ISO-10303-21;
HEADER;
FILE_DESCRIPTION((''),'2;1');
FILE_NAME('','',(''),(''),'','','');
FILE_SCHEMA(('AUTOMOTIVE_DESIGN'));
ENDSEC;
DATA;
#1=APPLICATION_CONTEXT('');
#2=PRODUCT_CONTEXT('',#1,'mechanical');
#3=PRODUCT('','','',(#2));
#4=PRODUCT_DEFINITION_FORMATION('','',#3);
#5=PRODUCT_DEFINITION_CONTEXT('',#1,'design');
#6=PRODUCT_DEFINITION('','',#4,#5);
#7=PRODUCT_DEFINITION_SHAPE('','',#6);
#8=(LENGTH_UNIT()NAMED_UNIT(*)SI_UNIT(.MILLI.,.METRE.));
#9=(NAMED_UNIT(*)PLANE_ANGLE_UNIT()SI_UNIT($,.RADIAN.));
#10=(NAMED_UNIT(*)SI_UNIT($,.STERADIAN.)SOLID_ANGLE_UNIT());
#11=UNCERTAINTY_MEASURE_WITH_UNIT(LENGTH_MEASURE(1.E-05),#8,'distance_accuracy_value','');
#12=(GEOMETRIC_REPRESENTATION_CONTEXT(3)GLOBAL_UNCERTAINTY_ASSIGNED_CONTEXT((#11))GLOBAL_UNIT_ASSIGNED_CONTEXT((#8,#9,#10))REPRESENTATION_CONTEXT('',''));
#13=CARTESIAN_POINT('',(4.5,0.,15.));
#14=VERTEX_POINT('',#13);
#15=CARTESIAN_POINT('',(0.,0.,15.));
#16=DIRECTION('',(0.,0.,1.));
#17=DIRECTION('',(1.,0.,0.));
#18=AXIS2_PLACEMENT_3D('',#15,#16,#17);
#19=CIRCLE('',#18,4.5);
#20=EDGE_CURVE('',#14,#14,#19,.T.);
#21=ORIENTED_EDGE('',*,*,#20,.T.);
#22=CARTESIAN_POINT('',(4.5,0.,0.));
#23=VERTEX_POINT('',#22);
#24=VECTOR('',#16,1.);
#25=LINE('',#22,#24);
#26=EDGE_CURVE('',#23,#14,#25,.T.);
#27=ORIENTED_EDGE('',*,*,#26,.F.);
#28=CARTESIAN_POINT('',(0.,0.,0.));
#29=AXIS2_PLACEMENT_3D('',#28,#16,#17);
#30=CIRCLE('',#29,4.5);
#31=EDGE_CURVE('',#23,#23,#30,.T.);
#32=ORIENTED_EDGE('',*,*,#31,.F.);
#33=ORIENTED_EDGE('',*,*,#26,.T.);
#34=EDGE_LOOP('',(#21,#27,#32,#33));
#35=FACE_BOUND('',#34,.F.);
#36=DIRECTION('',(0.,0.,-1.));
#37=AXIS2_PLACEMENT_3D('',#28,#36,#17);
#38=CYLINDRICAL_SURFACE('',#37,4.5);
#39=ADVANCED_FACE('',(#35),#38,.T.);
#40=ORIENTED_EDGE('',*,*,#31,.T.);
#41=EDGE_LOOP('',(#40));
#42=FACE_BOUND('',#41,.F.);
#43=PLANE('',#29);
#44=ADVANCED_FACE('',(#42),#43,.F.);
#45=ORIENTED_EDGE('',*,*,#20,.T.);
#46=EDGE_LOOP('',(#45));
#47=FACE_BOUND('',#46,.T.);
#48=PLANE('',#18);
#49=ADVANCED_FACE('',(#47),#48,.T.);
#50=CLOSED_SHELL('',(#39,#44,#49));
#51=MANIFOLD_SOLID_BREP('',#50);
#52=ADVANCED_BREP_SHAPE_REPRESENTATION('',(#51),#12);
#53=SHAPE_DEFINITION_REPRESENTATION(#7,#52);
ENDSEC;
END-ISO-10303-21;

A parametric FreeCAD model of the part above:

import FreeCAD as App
import Part
import Sketcher

V = App.Vector

doc = App.newDocument("Part")
body = doc.addObject("PartDesign::Body", "Body")

sketch1 = body.newObject("Sketcher::SketchObject", "Sketch")
sketch1.AttachmentSupport = (doc.getObject("XY_Plane"), [""])
sketch1.MapMode = "FlatFace"
sketch1.addGeometry(Part.Circle(V(0, 0, 0), V(0, 0, 1), 4.5), False)
sketch1.addConstraint([
    Sketcher.Constraint("Coincident", 0, 3, -1, 1),
    Sketcher.Constraint("Diameter", 0, 9.0),
])
pad1 = body.newObject("PartDesign::Pad", "Pad")
pad1.Profile = sketch1
pad1.Length = 15

doc.recompute()
